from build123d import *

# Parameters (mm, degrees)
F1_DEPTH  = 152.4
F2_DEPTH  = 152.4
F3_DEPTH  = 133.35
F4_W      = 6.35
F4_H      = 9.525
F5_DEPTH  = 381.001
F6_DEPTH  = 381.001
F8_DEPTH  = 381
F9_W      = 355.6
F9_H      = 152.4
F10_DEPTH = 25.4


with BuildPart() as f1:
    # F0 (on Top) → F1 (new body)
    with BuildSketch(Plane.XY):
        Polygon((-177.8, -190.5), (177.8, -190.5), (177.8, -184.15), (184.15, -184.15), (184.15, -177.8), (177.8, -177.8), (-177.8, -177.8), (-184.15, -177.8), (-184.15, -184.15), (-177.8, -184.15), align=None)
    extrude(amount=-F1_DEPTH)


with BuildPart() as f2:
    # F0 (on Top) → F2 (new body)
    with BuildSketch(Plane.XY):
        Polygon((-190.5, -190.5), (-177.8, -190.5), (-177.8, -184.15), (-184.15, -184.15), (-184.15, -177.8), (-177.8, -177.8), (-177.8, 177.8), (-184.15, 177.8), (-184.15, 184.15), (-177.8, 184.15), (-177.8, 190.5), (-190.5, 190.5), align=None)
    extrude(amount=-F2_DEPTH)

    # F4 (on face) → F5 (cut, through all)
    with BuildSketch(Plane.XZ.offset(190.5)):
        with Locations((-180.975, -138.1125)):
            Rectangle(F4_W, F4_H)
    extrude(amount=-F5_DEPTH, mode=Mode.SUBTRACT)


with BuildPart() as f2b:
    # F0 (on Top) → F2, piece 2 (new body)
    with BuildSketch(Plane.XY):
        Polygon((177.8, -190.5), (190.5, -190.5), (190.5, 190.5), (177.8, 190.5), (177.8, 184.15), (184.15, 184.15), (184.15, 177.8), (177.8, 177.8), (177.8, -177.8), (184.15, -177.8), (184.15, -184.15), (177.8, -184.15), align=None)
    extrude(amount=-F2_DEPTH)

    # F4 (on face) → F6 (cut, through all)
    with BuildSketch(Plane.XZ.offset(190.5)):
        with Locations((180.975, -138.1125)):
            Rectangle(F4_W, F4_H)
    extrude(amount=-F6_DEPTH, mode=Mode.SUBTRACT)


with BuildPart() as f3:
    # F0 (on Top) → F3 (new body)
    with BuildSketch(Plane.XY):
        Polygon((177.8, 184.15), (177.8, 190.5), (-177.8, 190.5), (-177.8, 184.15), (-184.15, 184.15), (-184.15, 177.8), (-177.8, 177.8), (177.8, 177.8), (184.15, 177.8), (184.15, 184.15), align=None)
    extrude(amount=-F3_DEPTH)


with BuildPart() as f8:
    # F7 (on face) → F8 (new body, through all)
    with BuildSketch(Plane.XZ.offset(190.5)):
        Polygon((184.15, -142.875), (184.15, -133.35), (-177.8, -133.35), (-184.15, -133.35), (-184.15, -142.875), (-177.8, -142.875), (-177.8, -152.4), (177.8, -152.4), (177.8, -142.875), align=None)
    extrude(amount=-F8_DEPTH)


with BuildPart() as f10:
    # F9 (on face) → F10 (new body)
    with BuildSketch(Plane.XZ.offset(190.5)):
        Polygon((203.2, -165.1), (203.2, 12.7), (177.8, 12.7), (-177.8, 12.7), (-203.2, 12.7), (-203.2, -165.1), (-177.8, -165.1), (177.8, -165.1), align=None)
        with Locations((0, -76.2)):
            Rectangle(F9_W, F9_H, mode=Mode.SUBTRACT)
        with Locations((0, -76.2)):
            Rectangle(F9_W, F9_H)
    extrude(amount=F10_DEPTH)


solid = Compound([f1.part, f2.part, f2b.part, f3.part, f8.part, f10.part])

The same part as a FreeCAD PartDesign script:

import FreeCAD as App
import Part
import Sketcher

V = App.Vector
Q = App.Units.Quantity


def add_polygon(sketch, points):
    """Adds a closed chain of lines whose ends are joined by coincident constraints."""
    first, n = sketch.GeometryCount, len(points)
    for a, b in zip(points, points[1:] + points[:1]):
        sketch.addGeometry(Part.LineSegment(App.Vector(*a, 0), App.Vector(*b, 0)), False)
    for i in range(n):
        sketch.addConstraint(Sketcher.Constraint("Coincident", first + i, 2, first + (i + 1) % n, 1))

doc = App.newDocument("Part")
params = doc.addObject("Spreadsheet::Sheet", "Params")
for row, (alias, value) in enumerate([
    ("sketch1_width", "14 in"),
    ("sketch1_width2", "14.5 in"),
    ("pad1_length", "6 in"),
    ("sketch2_height", "14 in"),
    ("sketch2_height2", "15 in"),
    ("sketch2_width", "0.5 in"),
    ("pad2_length", "6 in"),
    ("sketch3_width", "0.25 in"),
    ("sketch3_height", "0.375 in"),
    ("sketch4_height", "15 in"),
    ("sketch4_height2", "14 in"),
    ("sketch4_width", "0.5 in"),
    ("pad3_length", "6 in"),
    ("sketch5_width", "0.25 in"),
    ("sketch5_height", "0.375 in"),
    ("sketch6_width", "14 in"),
    ("sketch6_width2", "14.5 in"),
    ("pad4_length", "5.25 in"),
    ("sketch7_width", "14 in"),
    ("sketch7_width2", "14.5 in"),
    ("sketch7_height", "0.375 in"),
    ("pad5_length", "15 in"),
    ("sketch8_width", "16 in"),
    ("sketch8_height", "7 in"),
    ("pad6_length", "1 in"),
], start=1):
    params.set(f"A{row}", alias)
    params.set(f"B{row}", "=" + value)
    params.setAlias(f"B{row}", alias)

body = doc.addObject("PartDesign::Body", "Body")

# Sketch on XY plane
sketch1 = doc.addObject("Sketcher::SketchObject", "Sketch")
body.addObject(sketch1)
sketch1.AttachmentSupport = (doc.XY_Plane, [""])
sketch1.MapMode = "FlatFace"
add_polygon(sketch1, [(-177.8, -190.5), (177.8, -190.5), (177.8, -184.15), (184.15, -184.15), (184.15, -177.8), (-184.15, -177.8), (-184.15, -184.15), (-177.8, -184.15)])  # lines 0-7
sketch1.addConstraint([
    Sketcher.Constraint("Horizontal", 0),
    Sketcher.Constraint("Vertical", 1),
    Sketcher.Constraint("Horizontal", 2),
    Sketcher.Constraint("Vertical", 3),
    Sketcher.Constraint("Horizontal", 4),
    Sketcher.Constraint("Vertical", 5),
    Sketcher.Constraint("Horizontal", 6),
    Sketcher.Constraint("Vertical", 7),
    Sketcher.Constraint("Symmetric", 2, 2, 5, 2, -2),
    Sketcher.Constraint("Equal", 2, 6),
    Sketcher.Constraint("Equal", 6, 1),
    Sketcher.Constraint("Equal", 1, 3),
    Sketcher.Constraint("DistanceX", 0, 1, 0, 2, Q("14 in")),
    Sketcher.Constraint("DistanceX", 4, 2, 4, 1, Q("14.5 in")),
    Sketcher.Constraint("DistanceY", 3, 2, -1, 1, Q("7 in")),
])
sketch1.setExpression("Constraints[20]", "Params.sketch1_width")
sketch1.setExpression("Constraints[21]", "Params.sketch1_width2")
pad1 = doc.addObject("PartDesign::Pad", "Pad")
body.addObject(pad1)
pad1.Profile = sketch1
pad1.setExpression("Length", "Params.pad1_length")
pad1.Reversed = True
body2 = doc.addObject("PartDesign::Body", "Body001")

# Sketch on XY plane
sketch2 = doc.addObject("Sketcher::SketchObject", "Sketch001")
body2.addObject(sketch2)
sketch2.AttachmentSupport = (doc.getObject("XY_Plane001"), [""])
sketch2.MapMode = "FlatFace"
add_polygon(sketch2, [(-190.5, -190.5), (-177.8, -190.5), (-177.8, -184.15), (-184.15, -184.15), (-184.15, -177.8), (-177.8, -177.8), (-177.8, 177.8), (-184.15, 177.8), (-184.15, 184.15), (-177.8, 184.15), (-177.8, 190.5), (-190.5, 190.5)])  # lines 0-11
sketch2.addConstraint([
    Sketcher.Constraint("Horizontal", 0),
    Sketcher.Constraint("Vertical", 1),
    Sketcher.Constraint("Horizontal", 2),
    Sketcher.Constraint("Vertical", 3),
    Sketcher.Constraint("Horizontal", 4),
    Sketcher.Constraint("Vertical", 5),
    Sketcher.Constraint("Horizontal", 6),
    Sketcher.Constraint("Vertical", 7),
    Sketcher.Constraint("Horizontal", 8),
    Sketcher.Constraint("Vertical", 9),
    Sketcher.Constraint("Horizontal", 10),
    Sketcher.Constraint("Vertical", 11),
    Sketcher.Constraint("Symmetric", 3, 2, 6, 2, -1),
    Sketcher.Constraint("Symmetric", 1, 2, 8, 2, -1),
    Sketcher.Constraint("Vertical", 1, 2, 4, 2),
    Sketcher.Constraint("Equal", 8, 1),
    Sketcher.Constraint("Equal", 1, 3),
    Sketcher.Constraint("Equal", 7, 9),
    Sketcher.Constraint("DistanceY", 5, 1, 5, 2, Q("14 in")),
    Sketcher.Constraint("DistanceY", 11, 2, 11, 1, Q("15 in")),
    Sketcher.Constraint("DistanceX", 0, 1, 0, 2, Q("0.5 in")),
    Sketcher.Constraint("DistanceX", 0, 2, -1, 1, Q("7 in")),
])
sketch2.setExpression("Constraints[30]", "Params.sketch2_height")
sketch2.setExpression("Constraints[31]", "Params.sketch2_height2")
sketch2.setExpression("Constraints[32]", "Params.sketch2_width")
pad2 = doc.addObject("PartDesign::Pad", "Pad001")
body2.addObject(pad2)
pad2.Profile = sketch2
pad2.setExpression("Length", "Params.pad2_length")
pad2.Reversed = True

# Sketch on XZ plane
sketch3 = doc.addObject("Sketcher::SketchObject", "Sketch002")
body2.addObject(sketch3)
sketch3.AttachmentSupport = (doc.getObject("XZ_Plane001"), [""])
sketch3.MapMode = "FlatFace"
sketch3.AttachmentOffset = App.Placement(V(0, 0, 7.5 * 25.4), App.Rotation())
add_polygon(sketch3, [(-184.15, -133.35), (-184.15, -142.875), (-177.8, -142.875), (-177.8, -133.35)])  # lines 0-3
sketch3.addConstraint([
    Sketcher.Constraint("Vertical", 0),
    Sketcher.Constraint("Horizontal", 1),
    Sketcher.Constraint("Vertical", 2),
    Sketcher.Constraint("Horizontal", 3),
    Sketcher.Constraint("DistanceX", 1, 2, -1, 1, Q("7 in")),
    Sketcher.Constraint("DistanceX", 1, 1, 1, 2, Q("0.25 in")),
    Sketcher.Constraint("DistanceY", 0, 2, 0, 1, Q("0.375 in")),
    Sketcher.Constraint("DistanceY", 2, 2, -1, 1, Q("5.25 in")),
])
sketch3.setExpression("Constraints[9]", "Params.sketch3_width")
sketch3.setExpression("Constraints[10]", "Params.sketch3_height")
pocket1 = doc.addObject("PartDesign::Pocket", "Pocket")
body2.addObject(pocket1)
pocket1.Profile = sketch3
pocket1.Type = "ThroughAll"
body3 = doc.addObject("PartDesign::Body", "Body002")

# Sketch on XY plane
sketch4 = doc.addObject("Sketcher::SketchObject", "Sketch003")
body3.addObject(sketch4)
sketch4.AttachmentSupport = (doc.getObject("XY_Plane002"), [""])
sketch4.MapMode = "FlatFace"
add_polygon(sketch4, [(177.8, -190.5), (190.5, -190.5), (190.5, 190.5), (177.8, 190.5), (177.8, 184.15), (184.15, 184.15), (184.15, 177.8), (177.8, 177.8), (177.8, -177.8), (184.15, -177.8), (184.15, -184.15), (177.8, -184.15)])  # lines 0-11
sketch4.addConstraint([
    Sketcher.Constraint("Horizontal", 0),
    Sketcher.Constraint("Vertical", 1),
    Sketcher.Constraint("Horizontal", 2),
    Sketcher.Constraint("Vertical", 3),
    Sketcher.Constraint("Horizontal", 4),
    Sketcher.Constraint("Vertical", 5),
    Sketcher.Constraint("Horizontal", 6),
    Sketcher.Constraint("Vertical", 7),
    Sketcher.Constraint("Horizontal", 8),
    Sketcher.Constraint("Vertical", 9),
    Sketcher.Constraint("Horizontal", 10),
    Sketcher.Constraint("Vertical", 11),
    Sketcher.Constraint("Symmetric", 5, 2, 8, 2, -1),
    Sketcher.Constraint("Symmetric", 3, 2, 10, 2, -1),
    Sketcher.Constraint("Vertical", 3, 2, 6, 2),
    Sketcher.Constraint("Equal", 10, 3),
    Sketcher.Constraint("Equal", 3, 5),
    Sketcher.Constraint("Equal", 9, 11),
    Sketcher.Constraint("DistanceY", 1, 1, 1, 2, Q("15 in")),
    Sketcher.Constraint("DistanceY", 7, 2, 7, 1, Q("14 in")),
    Sketcher.Constraint("DistanceX", 0, 1, 0, 2, Q("0.5 in")),
    Sketcher.Constraint("DistanceX", -1, 1, 2, 2, Q("7 in")),
])
sketch4.setExpression("Constraints[30]", "Params.sketch4_height")
sketch4.setExpression("Constraints[31]", "Params.sketch4_height2")
sketch4.setExpression("Constraints[32]", "Params.sketch4_width")
pad3 = doc.addObject("PartDesign::Pad", "Pad002")
body3.addObject(pad3)
pad3.Profile = sketch4
pad3.setExpression("Length", "Params.pad3_length")
pad3.Reversed = True

# Sketch on XZ plane
sketch5 = doc.addObject("Sketcher::SketchObject", "Sketch004")
body3.addObject(sketch5)
sketch5.AttachmentSupport = (doc.getObject("XZ_Plane002"), [""])
sketch5.MapMode = "FlatFace"
sketch5.AttachmentOffset = App.Placement(V(0, 0, 7.5 * 25.4), App.Rotation())
add_polygon(sketch5, [(177.8, -133.35), (177.8, -142.875), (184.15, -142.875), (184.15, -133.35)])  # lines 0-3
sketch5.addConstraint([
    Sketcher.Constraint("Vertical", 0),
    Sketcher.Constraint("Horizontal", 1),
    Sketcher.Constraint("Vertical", 2),
    Sketcher.Constraint("Horizontal", 3),
    Sketcher.Constraint("DistanceX", -1, 1, 0, 2, Q("7 in")),
    Sketcher.Constraint("DistanceX", 1, 1, 1, 2, Q("0.25 in")),
    Sketcher.Constraint("DistanceY", 0, 2, 0, 1, Q("0.375 in")),
    Sketcher.Constraint("DistanceY", 2, 2, -1, 1, Q("5.25 in")),
])
sketch5.setExpression("Constraints[9]", "Params.sketch5_width")
sketch5.setExpression("Constraints[10]", "Params.sketch5_height")
pocket2 = doc.addObject("PartDesign::Pocket", "Pocket001")
body3.addObject(pocket2)
pocket2.Profile = sketch5
pocket2.Type = "ThroughAll"
body4 = doc.addObject("PartDesign::Body", "Body003")

# Sketch on XY plane
sketch6 = doc.addObject("Sketcher::SketchObject", "Sketch005")
body4.addObject(sketch6)
sketch6.AttachmentSupport = (doc.getObject("XY_Plane003"), [""])
sketch6.MapMode = "FlatFace"
add_polygon(sketch6, [(177.8, 184.15), (177.8, 190.5), (-177.8, 190.5), (-177.8, 184.15), (-184.15, 184.15), (-184.15, 177.8), (184.15, 177.8), (184.15, 184.15)])  # lines 0-7
sketch6.addConstraint([
    Sketcher.Constraint("Vertical", 0),
    Sketcher.Constraint("Horizontal", 1),
    Sketcher.Constraint("Vertical", 2),
    Sketcher.Constraint("Horizontal", 3),
    Sketcher.Constraint("Vertical", 4),
    Sketcher.Constraint("Horizontal", 5),
    Sketcher.Constraint("Vertical", 6),
    Sketcher.Constraint("Horizontal", 7),
    Sketcher.Constraint("Symmetric", 3, 2, 6, 2, -2),
    Sketcher.Constraint("Equal", 3, 7),
    Sketcher.Constraint("Equal", 7, 0),
    Sketcher.Constraint("Equal", 2, 4),
    Sketcher.Constraint("DistanceX", 1, 2, 1, 1, Q("14 in")),
    Sketcher.Constraint("DistanceX", 5, 1, 5, 2, Q("14.5 in")),
    Sketcher.Constraint("DistanceY", -1, 1, 4, 2, Q("7 in")),
])
sketch6.setExpression("Constraints[20]", "Params.sketch6_width")
sketch6.setExpression("Constraints[21]", "Params.sketch6_width2")
pad4 = doc.addObject("PartDesign::Pad", "Pad003")
body4.addObject(pad4)
pad4.Profile = sketch6
pad4.setExpression("Length", "Params.pad4_length")
pad4.Reversed = True
body5 = doc.addObject("PartDesign::Body", "Body004")

# Sketch on XZ plane
sketch7 = doc.addObject("Sketcher::SketchObject", "Sketch006")
body5.addObject(sketch7)
sketch7.AttachmentSupport = (doc.getObject("XZ_Plane004"), [""])
sketch7.MapMode = "FlatFace"
sketch7.AttachmentOffset = App.Placement(V(0, 0, 7.5 * 25.4), App.Rotation())
add_polygon(sketch7, [(184.15, -142.875), (184.15, -133.35), (-184.15, -133.35), (-184.15, -142.875), (-177.8, -142.875), (-177.8, -152.4), (177.8, -152.4), (177.8, -142.875)])  # lines 0-7
sketch7.addConstraint([
    Sketcher.Constraint("Vertical", 0),
    Sketcher.Constraint("Horizontal", 1),
    Sketcher.Constraint("Vertical", 2),
    Sketcher.Constraint("Horizontal", 3),
    Sketcher.Constraint("Vertical", 4),
    Sketcher.Constraint("Horizontal", 5),
    Sketcher.Constraint("Vertical", 6),
    Sketcher.Constraint("Horizontal", 7),
    Sketcher.Constraint("Symmetric", 3, 2, 6, 2, -2),
    Sketcher.Constraint("Equal", 3, 7),
    Sketcher.Constraint("Equal", 2, 4),
    Sketcher.Constraint("DistanceX", 5, 1, 5, 2, Q("14 in")),
    Sketcher.Constraint("DistanceX", 1, 2, 1, 1, Q("14.5 in")),
    Sketcher.Constraint("DistanceY", 4, 2, -1, 1, Q("6 in")),
    Sketcher.Constraint("DistanceY", 0, 1, 0, 2, Q("0.375 in")),
])
sketch7.setExpression("Constraints[19]", "Params.sketch7_width")
sketch7.setExpression("Constraints[20]", "Params.sketch7_width2")
sketch7.setExpression("Constraints[22]", "Params.sketch7_height")
pad5 = doc.addObject("PartDesign::Pad", "Pad004")
body5.addObject(pad5)
pad5.Profile = sketch7
pad5.setExpression("Length", "Params.pad5_length")
pad5.Reversed = True
body6 = doc.addObject("PartDesign::Body", "Body005")

# Sketch on XZ plane
sketch8 = doc.addObject("Sketcher::SketchObject", "Sketch007")
body6.addObject(sketch8)
sketch8.AttachmentSupport = (doc.getObject("XZ_Plane005"), [""])
sketch8.MapMode = "FlatFace"
sketch8.AttachmentOffset = App.Placement(V(0, 0, 7.5 * 25.4), App.Rotation())
add_polygon(sketch8, [(203.2, -165.1), (203.2, 12.7), (-203.2, 12.7), (-203.2, -165.1)])  # lines 0-3
sketch8.addConstraint([
    Sketcher.Constraint("Vertical", 0),
    Sketcher.Constraint("Horizontal", 1),
    Sketcher.Constraint("Vertical", 2),
    Sketcher.Constraint("Horizontal", 3),
    Sketcher.Constraint("DistanceX", 1, 2, 1, 1, Q("16 in")),
    Sketcher.Constraint("DistanceY", 0, 1, 0, 2, Q("7 in")),
    Sketcher.Constraint("DistanceX", -1, 1, 0, 2, Q("8 in")),
    Sketcher.Constraint("DistanceY", -1, 1, 0, 2, Q("0.5 in")),
])
sketch8.setExpression("Constraints[8]", "Params.sketch8_width")
sketch8.setExpression("Constraints[9]", "Params.sketch8_height")
pad6 = doc.addObject("PartDesign::Pad", "Pad005")
body6.addObject(pad6)
pad6.Profile = sketch8
pad6.setExpression("Length", "Params.pad6_length")

doc.recompute()
